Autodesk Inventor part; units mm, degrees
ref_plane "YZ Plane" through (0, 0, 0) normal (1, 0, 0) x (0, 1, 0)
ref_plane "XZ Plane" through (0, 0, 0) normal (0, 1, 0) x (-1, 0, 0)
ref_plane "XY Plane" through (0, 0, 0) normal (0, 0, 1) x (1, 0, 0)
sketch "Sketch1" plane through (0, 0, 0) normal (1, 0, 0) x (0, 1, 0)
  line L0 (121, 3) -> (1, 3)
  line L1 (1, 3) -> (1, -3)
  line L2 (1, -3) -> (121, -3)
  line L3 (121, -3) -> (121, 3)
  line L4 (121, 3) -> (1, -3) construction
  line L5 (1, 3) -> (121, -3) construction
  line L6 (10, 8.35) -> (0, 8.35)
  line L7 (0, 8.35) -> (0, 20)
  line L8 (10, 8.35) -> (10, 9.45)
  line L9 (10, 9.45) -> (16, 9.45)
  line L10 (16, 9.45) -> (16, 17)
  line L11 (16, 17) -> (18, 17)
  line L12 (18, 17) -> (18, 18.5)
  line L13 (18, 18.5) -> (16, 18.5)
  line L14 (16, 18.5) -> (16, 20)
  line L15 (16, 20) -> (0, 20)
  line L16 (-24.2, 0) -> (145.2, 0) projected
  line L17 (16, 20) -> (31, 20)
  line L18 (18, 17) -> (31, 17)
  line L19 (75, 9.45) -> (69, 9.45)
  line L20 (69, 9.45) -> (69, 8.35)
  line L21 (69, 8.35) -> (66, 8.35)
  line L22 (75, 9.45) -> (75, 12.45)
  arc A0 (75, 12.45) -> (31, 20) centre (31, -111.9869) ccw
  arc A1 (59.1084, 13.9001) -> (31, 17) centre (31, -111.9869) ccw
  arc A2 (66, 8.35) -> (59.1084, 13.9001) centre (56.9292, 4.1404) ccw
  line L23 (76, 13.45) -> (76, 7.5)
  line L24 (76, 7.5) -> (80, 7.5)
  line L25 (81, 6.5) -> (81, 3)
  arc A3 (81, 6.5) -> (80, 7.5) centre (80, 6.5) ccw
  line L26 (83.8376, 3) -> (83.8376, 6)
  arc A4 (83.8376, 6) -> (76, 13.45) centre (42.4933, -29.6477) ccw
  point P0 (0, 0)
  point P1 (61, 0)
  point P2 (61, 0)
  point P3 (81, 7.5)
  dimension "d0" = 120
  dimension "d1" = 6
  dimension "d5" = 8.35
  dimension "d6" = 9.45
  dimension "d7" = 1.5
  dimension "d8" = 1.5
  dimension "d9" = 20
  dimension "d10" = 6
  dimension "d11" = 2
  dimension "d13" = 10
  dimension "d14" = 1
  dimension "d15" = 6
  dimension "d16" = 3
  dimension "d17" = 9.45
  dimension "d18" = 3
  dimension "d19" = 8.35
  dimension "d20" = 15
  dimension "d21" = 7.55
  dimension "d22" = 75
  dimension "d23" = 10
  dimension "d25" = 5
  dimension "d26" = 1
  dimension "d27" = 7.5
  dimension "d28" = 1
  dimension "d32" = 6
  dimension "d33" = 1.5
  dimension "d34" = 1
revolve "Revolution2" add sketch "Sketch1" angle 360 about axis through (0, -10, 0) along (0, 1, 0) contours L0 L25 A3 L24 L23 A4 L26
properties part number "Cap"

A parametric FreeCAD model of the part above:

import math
import FreeCAD as App
import Part
import Sketcher

doc = App.newDocument("Part")
body = doc.addObject("PartDesign::Body", "Body")

sketch1 = body.newObject("Sketcher::SketchObject", "Sketch")
sketch1.AttachmentSupport = (doc.getObject("YZ_Plane"), [""])
sketch1.MapMode = "FlatFace"
sketch1.addGeometry([
    Part.LineSegment(App.Vector(81, 3, 0), App.Vector(83.8376, 3, 0)),
    Part.LineSegment(App.Vector(83.8376, 3, 0), App.Vector(83.8376, 6, 0)),
    Part.ArcOfCircle(Part.Circle(App.Vector(42.4933, -29.6477, 0), App.Vector(0, 0, 1), 54.590381), math.radians(40.768424), math.radians(52.136394)),
    Part.LineSegment(App.Vector(76, 13.45, 0), App.Vector(76, 7.5, 0)),
    Part.LineSegment(App.Vector(76, 7.5, 0), App.Vector(80, 7.5, 0)),
    Part.ArcOfCircle(Part.Circle(App.Vector(80, 6.5, 0), App.Vector(0, 0, 1), 1), math.radians(0), math.radians(90)),
    Part.LineSegment(App.Vector(81, 6.5, 0), App.Vector(81, 3, 0)),
], False)
sketch1.addConstraint([
    Sketcher.Constraint("Coincident", 0, 2, 1, 1),
    Sketcher.Constraint("Coincident", 1, 2, 2, 1),
    Sketcher.Constraint("Coincident", 2, 2, 3, 1),
    Sketcher.Constraint("Coincident", 3, 2, 4, 1),
    Sketcher.Constraint("Tangent", 4, 2, 5, 2),
    Sketcher.Constraint("Tangent", 5, 1, 6, 1),
    Sketcher.Constraint("Coincident", 6, 2, 0, 1),
    Sketcher.Constraint("Horizontal", 0),
    Sketcher.Constraint("Vertical", 1),
    Sketcher.Constraint("Vertical", 3),
    Sketcher.Constraint("Horizontal", 4),
    Sketcher.Constraint("Vertical", 6),
    Sketcher.Constraint("Radius", 5, 1.0),
    Sketcher.Constraint("DistanceY", 1, 1, 1, 2, 3.0),
    Sketcher.Constraint("DistanceY", -1, 1, 0, 2, 3.0),
    Sketcher.Constraint("DistanceX", 3, 2, 5, 1, 5.0),
    Sketcher.Constraint("DistanceY", -1, 1, 3, 2, 7.5),
    Sketcher.Constraint("DistanceX", -1, 1, 5, 3, 80.0),
    Sketcher.Constraint("DistanceY", 3, 2, 3, 1, 5.95),
    Sketcher.Constraint("Radius", 2, 54.5904),
    Sketcher.Constraint("DistanceX", 0, 1, 0, 2, 2.8376),
])
revolution = body.newObject("PartDesign::Revolution", "Revolution")
revolution.Profile = sketch1
revolution.ReferenceAxis = (sketch1, ["H_Axis"])
revolution.Angle = 360

doc.recompute()
